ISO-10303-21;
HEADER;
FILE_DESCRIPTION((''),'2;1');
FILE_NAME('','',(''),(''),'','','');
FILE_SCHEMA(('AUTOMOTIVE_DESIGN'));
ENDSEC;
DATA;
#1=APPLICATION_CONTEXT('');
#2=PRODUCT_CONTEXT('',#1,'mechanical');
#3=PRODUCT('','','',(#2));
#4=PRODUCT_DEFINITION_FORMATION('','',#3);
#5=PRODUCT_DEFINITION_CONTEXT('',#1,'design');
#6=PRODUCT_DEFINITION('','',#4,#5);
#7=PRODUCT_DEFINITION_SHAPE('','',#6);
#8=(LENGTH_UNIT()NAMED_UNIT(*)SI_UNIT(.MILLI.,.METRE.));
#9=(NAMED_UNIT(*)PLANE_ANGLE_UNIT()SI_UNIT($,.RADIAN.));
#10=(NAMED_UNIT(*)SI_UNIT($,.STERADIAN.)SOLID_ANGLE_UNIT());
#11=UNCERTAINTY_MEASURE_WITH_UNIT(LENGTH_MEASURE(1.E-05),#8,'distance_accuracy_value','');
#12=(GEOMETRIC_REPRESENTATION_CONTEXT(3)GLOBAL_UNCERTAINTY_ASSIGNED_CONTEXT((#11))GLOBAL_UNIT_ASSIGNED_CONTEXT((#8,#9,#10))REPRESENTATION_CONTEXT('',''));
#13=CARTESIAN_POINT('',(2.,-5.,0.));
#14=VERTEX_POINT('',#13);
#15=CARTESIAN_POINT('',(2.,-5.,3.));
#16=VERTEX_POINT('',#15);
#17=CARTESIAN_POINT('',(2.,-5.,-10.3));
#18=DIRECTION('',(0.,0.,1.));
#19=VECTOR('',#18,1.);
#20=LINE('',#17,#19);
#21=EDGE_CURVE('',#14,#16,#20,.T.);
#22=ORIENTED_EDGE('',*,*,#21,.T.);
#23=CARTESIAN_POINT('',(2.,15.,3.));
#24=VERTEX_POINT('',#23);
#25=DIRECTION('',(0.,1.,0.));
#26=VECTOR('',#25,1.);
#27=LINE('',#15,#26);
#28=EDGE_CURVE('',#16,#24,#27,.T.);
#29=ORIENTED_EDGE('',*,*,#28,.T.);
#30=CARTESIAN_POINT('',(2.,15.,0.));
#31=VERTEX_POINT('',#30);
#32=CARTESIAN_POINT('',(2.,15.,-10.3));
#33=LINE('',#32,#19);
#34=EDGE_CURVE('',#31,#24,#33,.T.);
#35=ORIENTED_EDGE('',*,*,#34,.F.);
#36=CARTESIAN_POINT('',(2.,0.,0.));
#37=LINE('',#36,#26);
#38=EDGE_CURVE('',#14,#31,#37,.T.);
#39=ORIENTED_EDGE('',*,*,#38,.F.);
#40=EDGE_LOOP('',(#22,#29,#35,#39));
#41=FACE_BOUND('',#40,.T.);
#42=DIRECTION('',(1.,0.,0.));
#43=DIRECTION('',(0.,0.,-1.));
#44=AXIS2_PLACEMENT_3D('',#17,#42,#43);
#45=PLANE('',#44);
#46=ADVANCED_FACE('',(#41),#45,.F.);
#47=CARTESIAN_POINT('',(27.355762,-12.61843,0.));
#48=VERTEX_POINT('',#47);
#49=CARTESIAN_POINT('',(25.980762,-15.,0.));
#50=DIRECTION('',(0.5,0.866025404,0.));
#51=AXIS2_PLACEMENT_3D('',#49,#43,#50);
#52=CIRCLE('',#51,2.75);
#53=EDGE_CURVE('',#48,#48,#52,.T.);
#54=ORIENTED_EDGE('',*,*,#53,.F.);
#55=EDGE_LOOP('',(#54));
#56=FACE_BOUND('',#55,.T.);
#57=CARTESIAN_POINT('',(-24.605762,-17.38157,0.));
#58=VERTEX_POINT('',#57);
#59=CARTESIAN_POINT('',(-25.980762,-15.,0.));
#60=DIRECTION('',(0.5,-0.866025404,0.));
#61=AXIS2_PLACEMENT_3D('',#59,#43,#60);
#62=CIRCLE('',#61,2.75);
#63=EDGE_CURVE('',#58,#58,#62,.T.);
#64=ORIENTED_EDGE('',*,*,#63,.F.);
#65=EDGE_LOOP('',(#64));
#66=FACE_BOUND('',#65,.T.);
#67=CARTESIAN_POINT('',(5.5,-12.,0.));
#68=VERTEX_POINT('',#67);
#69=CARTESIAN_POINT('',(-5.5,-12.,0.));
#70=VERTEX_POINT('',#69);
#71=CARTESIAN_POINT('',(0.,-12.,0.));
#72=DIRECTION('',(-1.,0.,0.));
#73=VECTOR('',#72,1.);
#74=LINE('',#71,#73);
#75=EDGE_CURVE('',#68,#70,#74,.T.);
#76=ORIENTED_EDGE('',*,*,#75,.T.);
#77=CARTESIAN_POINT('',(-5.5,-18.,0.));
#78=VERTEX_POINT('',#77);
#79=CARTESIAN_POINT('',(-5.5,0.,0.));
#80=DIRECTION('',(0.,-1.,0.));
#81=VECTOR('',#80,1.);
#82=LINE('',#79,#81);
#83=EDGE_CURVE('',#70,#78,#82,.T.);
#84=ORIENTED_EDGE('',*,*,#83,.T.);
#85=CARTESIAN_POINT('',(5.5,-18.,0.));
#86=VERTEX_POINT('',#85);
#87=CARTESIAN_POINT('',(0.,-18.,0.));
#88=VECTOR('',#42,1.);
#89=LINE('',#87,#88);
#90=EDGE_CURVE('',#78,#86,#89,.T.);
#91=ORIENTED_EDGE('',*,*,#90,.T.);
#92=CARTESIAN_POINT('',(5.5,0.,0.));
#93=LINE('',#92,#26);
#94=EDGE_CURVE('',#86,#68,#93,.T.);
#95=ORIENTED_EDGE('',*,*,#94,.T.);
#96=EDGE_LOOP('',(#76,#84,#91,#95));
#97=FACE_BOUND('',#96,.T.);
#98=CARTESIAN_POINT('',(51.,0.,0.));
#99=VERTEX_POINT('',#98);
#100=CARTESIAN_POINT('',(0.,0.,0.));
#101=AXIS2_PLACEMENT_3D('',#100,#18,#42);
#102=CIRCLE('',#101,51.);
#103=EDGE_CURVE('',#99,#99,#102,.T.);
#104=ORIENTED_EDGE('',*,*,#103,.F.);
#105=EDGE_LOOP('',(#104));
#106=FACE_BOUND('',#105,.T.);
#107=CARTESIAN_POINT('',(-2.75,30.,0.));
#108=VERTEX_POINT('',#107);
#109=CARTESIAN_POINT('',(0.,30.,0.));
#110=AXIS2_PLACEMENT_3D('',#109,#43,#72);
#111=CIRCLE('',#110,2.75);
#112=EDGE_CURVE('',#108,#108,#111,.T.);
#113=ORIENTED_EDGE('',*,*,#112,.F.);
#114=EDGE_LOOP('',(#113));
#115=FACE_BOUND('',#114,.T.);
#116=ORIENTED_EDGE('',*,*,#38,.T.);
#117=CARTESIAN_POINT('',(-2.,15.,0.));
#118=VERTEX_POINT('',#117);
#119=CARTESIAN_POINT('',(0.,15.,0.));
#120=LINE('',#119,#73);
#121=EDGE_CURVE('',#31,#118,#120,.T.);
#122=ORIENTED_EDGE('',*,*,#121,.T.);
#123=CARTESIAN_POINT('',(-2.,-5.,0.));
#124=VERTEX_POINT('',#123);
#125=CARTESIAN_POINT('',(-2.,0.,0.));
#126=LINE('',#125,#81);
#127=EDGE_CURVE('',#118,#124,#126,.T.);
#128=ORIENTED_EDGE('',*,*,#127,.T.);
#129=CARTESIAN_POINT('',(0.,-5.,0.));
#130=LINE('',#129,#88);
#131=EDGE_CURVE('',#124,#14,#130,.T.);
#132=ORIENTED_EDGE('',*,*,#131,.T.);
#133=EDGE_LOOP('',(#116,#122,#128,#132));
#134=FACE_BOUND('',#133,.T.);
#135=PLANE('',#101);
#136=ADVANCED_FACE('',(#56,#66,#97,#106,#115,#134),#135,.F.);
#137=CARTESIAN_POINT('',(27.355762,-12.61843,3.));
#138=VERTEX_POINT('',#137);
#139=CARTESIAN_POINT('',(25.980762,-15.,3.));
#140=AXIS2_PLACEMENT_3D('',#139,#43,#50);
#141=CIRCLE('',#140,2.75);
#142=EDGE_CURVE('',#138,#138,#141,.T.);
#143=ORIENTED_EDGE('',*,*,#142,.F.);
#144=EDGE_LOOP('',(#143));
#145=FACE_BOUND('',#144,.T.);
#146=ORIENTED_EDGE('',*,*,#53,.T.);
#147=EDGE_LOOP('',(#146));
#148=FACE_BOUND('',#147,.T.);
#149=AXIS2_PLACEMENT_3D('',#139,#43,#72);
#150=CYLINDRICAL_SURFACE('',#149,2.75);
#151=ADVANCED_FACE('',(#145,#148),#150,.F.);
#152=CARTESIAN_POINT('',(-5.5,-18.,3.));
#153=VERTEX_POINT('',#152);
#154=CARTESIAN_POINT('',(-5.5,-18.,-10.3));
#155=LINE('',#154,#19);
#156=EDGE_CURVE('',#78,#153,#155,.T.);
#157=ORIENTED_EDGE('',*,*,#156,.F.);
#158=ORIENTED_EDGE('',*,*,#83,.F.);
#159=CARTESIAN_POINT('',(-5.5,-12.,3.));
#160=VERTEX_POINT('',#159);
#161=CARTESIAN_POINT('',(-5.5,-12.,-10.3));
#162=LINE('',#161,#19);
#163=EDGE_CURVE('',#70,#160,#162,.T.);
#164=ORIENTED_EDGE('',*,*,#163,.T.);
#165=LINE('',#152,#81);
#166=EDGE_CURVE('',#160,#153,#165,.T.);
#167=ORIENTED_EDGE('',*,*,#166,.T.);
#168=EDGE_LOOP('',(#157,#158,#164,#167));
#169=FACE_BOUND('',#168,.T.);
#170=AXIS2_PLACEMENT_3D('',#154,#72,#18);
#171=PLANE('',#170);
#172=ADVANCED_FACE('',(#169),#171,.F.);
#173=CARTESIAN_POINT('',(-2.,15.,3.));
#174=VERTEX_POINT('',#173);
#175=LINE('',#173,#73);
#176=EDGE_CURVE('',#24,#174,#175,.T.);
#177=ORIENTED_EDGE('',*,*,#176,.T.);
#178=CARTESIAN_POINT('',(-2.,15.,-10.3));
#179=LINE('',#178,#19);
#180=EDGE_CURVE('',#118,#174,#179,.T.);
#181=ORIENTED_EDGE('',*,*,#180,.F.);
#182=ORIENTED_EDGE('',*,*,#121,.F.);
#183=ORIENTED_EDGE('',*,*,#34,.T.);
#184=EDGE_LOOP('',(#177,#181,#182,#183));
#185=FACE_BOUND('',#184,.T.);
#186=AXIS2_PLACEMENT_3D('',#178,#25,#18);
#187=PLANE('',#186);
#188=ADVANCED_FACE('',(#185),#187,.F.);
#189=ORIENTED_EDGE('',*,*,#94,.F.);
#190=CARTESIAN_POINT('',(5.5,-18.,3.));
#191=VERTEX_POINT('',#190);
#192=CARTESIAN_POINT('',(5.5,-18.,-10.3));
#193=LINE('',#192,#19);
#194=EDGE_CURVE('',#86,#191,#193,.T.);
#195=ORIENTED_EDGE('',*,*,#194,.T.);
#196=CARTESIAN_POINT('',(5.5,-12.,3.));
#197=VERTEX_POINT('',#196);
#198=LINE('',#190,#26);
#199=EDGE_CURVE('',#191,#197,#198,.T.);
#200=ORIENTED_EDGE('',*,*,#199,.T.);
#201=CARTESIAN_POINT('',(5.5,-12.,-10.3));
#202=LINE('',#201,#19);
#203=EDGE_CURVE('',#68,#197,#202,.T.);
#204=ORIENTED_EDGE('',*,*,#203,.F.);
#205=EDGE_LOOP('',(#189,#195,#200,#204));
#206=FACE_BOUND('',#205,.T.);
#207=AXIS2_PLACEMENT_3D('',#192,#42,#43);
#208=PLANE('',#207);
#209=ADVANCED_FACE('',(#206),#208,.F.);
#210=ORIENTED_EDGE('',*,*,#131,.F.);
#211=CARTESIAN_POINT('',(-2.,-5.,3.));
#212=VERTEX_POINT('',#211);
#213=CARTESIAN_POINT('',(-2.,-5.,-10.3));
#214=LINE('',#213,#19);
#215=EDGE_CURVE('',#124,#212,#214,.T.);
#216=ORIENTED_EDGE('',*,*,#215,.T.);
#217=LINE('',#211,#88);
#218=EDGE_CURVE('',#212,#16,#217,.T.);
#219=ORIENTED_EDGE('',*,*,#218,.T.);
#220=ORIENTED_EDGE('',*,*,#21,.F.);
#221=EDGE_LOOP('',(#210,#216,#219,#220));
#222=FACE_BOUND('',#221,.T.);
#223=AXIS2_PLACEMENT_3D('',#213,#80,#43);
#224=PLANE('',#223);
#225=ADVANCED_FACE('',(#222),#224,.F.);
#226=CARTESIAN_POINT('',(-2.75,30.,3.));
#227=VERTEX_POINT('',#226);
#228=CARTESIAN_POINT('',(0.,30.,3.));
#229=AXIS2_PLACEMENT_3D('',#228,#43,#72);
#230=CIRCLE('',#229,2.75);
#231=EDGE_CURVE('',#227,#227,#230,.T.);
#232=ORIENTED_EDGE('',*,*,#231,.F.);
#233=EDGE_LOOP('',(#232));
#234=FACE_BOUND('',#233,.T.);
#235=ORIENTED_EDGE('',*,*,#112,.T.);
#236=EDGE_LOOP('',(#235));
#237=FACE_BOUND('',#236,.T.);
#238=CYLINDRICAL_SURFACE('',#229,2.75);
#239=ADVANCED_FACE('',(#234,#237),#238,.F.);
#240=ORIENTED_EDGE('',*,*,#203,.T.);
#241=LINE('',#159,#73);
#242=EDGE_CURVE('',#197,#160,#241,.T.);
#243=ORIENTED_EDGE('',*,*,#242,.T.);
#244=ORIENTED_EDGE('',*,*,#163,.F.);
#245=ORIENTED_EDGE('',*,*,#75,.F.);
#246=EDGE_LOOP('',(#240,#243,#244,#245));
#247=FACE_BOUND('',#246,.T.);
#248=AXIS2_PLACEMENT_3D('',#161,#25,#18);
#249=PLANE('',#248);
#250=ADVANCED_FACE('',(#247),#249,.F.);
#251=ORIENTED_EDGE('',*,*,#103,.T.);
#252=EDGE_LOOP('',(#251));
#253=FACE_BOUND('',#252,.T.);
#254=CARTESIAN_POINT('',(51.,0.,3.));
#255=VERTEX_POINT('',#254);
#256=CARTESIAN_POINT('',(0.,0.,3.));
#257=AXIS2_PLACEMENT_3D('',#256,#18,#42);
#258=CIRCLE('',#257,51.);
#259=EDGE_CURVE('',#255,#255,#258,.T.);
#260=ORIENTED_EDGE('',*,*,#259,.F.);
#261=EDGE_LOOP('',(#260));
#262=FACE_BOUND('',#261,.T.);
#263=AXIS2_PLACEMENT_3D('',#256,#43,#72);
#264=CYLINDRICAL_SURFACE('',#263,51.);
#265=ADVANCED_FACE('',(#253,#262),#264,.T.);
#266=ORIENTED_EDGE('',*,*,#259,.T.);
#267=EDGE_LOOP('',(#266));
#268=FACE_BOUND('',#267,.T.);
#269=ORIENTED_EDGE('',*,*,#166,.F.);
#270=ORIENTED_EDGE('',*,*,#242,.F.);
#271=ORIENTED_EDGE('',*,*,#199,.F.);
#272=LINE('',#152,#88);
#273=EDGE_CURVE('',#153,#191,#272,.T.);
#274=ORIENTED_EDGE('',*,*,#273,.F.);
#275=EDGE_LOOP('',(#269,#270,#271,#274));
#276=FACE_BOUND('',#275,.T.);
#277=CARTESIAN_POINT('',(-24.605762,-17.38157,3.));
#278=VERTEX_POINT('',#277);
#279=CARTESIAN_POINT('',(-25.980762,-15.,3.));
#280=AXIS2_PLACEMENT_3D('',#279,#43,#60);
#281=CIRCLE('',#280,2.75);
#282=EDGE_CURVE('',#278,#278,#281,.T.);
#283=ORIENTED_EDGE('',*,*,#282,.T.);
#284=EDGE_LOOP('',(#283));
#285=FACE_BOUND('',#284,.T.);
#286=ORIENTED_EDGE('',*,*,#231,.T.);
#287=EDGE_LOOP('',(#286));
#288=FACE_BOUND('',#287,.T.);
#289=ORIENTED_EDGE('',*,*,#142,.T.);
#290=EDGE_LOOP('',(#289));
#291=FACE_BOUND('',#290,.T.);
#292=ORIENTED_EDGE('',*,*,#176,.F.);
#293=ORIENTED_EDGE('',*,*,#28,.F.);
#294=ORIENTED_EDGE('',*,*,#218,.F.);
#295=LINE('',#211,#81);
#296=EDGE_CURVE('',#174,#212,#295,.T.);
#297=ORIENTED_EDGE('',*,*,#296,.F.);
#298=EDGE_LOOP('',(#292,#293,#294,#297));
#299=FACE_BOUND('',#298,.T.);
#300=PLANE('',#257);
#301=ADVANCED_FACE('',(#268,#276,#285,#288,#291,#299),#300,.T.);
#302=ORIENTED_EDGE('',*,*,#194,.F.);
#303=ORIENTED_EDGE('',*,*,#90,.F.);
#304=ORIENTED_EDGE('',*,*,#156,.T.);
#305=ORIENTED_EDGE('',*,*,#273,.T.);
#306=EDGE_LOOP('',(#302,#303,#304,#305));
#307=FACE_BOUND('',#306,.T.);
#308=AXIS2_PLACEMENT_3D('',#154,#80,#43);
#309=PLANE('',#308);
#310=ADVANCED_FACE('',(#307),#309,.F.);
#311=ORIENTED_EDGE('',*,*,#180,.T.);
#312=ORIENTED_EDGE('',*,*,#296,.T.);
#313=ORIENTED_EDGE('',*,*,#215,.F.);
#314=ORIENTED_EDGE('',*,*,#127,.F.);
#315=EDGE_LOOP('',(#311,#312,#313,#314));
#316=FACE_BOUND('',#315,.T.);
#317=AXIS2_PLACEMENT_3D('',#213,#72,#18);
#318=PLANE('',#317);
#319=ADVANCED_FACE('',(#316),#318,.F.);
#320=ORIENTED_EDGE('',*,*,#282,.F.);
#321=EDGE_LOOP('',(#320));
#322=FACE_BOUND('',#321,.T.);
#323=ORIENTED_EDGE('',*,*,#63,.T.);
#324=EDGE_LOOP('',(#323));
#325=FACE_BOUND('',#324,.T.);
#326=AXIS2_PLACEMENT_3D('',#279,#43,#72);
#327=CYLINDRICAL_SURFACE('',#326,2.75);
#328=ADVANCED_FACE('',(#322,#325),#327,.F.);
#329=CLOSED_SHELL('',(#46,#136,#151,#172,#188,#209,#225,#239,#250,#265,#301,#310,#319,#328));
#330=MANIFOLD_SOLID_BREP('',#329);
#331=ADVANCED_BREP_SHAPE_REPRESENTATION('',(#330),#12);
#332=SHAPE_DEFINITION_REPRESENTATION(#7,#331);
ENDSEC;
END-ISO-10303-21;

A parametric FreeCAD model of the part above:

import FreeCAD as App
import Part
import Sketcher
from FreeCAD import Vector
Q = App.Units.Quantity

doc = App.newDocument("Part")
body = doc.addObject("PartDesign::Body", "Body")

# Sketch on XY plane
sketch1 = body.newObject("Sketcher::SketchObject", "Sketch")
sketch1.AttachmentSupport = (doc.getObject("XY_Plane"), [""])
sketch1.MapMode = "FlatFace"
sketch1.addGeometry(Part.Circle(Vector(0, 0, 0), Vector(0, 0, 1), 51), False)
sketch1.addConstraint([
    Sketcher.Constraint("Coincident", 0, 3, -1, 1),
    Sketcher.Constraint("Diameter", 0, Q("102 mm")),
])
pad1 = body.newObject("PartDesign::Pad", "Pad")
pad1.Profile = sketch1
pad1.Length = 3

# Sketch on XY plane
sketch2 = body.newObject("Sketcher::SketchObject", "Sketch001")
sketch2.AttachmentSupport = (doc.getObject("XY_Plane"), [""])
sketch2.MapMode = "FlatFace"
sketch2.addGeometry(Part.Circle(Vector(0, 30, 0), Vector(0, 0, 1), 2.8), False)
sketch2.addConstraint([
    Sketcher.Constraint("PointOnObject", 0, 3, -2),
    Sketcher.Constraint("Diameter", 0, Q("5.5 mm")),
    Sketcher.Constraint("DistanceY", -1, 1, 0, 3, Q("30 mm")),
])
pocket1 = body.newObject("PartDesign::Pocket", "Pocket")
pocket1.Profile = sketch2
pocket1.Length = 3
pocket1.Reversed = True
doc.recompute()

polarpattern = body.newObject("PartDesign::PolarPattern", "PolarPattern")
polarpattern.Originals = [pocket1]
polarpattern.Axis = (doc.getObject("Z_Axis"), [""])
polarpattern.Angle = 360
polarpattern.Occurrences = 3
body.Tip = polarpattern

# Sketch on XY plane
sketch3 = body.newObject("Sketcher::SketchObject", "Sketch002")
sketch3.AttachmentSupport = (doc.getObject("XY_Plane"), [""])
sketch3.MapMode = "FlatFace"
sketch3.AttachmentOffset = App.Placement(Vector(0, 0, -10.3), App.Rotation())
sketch3.addGeometry([
    Part.Circle(Vector(0, 30, 0), Vector(0, 0, 1), 2.8),  # 0
    Part.LineSegment(Vector(-2, 15, 0), Vector(-2, -5, 0)),  # 1
    Part.LineSegment(Vector(-2, -5, 0), Vector(2, -5, 0)),  # 2
    Part.LineSegment(Vector(2, -5, 0), Vector(2, 15, 0)),  # 3
    Part.LineSegment(Vector(2, 15, 0), Vector(-2, 15, 0)),  # 4
    Part.LineSegment(Vector(-5.5, -12, 0), Vector(-5.5, -18, 0)),  # 5
    Part.LineSegment(Vector(-5.5, -18, 0), Vector(5.5, -18, 0)),  # 6
    Part.LineSegment(Vector(5.5, -18, 0), Vector(5.5, -12, 0)),  # 7
    Part.LineSegment(Vector(5.5, -12, 0), Vector(-5.5, -12, 0)),  # 8
], False)
sketch3.addConstraint([
    Sketcher.Constraint("Coincident", 1, 2, 2, 1),
    Sketcher.Constraint("Coincident", 2, 2, 3, 1),
    Sketcher.Constraint("Coincident", 3, 2, 4, 1),
    Sketcher.Constraint("Coincident", 4, 2, 1, 1),
    Sketcher.Constraint("Coincident", 5, 2, 6, 1),
    Sketcher.Constraint("Coincident", 6, 2, 7, 1),
    Sketcher.Constraint("Coincident", 7, 2, 8, 1),
    Sketcher.Constraint("Coincident", 8, 2, 5, 1),
    Sketcher.Constraint("Vertical", 1),
    Sketcher.Constraint("Horizontal", 2),
    Sketcher.Constraint("Vertical", 3),
    Sketcher.Constraint("Horizontal", 4),
    Sketcher.Constraint("Vertical", 5),
    Sketcher.Constraint("Horizontal", 6),
    Sketcher.Constraint("Vertical", 7),
    Sketcher.Constraint("Horizontal", 8),
    Sketcher.Constraint("PointOnObject", 0, 3, -2),
    Sketcher.Constraint("Diameter", 0, Q("5.5 mm")),
    Sketcher.Constraint("DistanceX", 2, 1, 2, 2, Q("4 mm")),
    Sketcher.Constraint("DistanceX", 6, 1, 6, 2, Q("11 mm")),
    Sketcher.Constraint("DistanceY", 1, 2, 1, 1, Q("20 mm")),
    Sketcher.Constraint("DistanceY", 5, 2, 5, 1, Q("6 mm")),
    Sketcher.Constraint("DistanceY", -1, 1, 0, 3, Q("30 mm")),
    Sketcher.Constraint("DistanceX", 1, 2, -1, 1, Q("2 mm")),
    Sketcher.Constraint("DistanceY", 1, 2, -1, 1, Q("5 mm")),
    Sketcher.Constraint("DistanceY", 5, 2, -1, 1, Q("18 mm")),
    Sketcher.Constraint("DistanceX", 5, 2, -1, 1, Q("5.5 mm")),
])
pocket2 = body.newObject("PartDesign::Pocket", "Pocket001")
pocket2.Profile = sketch3
pocket2.Length = 13.3
pocket2.Reversed = True

doc.recompute()
